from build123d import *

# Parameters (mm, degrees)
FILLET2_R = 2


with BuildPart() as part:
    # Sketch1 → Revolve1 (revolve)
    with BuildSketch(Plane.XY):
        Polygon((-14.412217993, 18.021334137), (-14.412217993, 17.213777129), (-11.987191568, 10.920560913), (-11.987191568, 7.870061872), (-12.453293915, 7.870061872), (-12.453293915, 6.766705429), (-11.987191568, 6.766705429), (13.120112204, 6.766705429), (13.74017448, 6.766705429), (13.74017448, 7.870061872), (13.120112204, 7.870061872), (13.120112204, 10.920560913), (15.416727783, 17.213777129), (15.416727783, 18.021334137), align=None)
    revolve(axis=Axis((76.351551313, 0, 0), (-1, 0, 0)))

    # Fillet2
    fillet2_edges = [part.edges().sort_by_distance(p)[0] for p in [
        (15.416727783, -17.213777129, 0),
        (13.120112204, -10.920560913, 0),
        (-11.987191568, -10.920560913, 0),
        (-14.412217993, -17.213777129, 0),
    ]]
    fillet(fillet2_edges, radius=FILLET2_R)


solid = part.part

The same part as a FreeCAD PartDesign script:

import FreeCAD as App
import Part
import Sketcher
from FreeCAD import Vector


def edges_at(feature, points):
    """Names of the edges that pass closest to the given points."""
    edges = feature.Shape.Edges
    near = lambda p: min(range(len(edges)), key=lambda i: edges[i].distToShape(Part.Vertex(*p))[0])
    return sorted({f"Edge{near(p) + 1}" for p in points})


def add_polygon(sketch, points):
    """Adds a closed chain of lines whose ends are joined by coincident constraints."""
    first, n = sketch.GeometryCount, len(points)
    for a, b in zip(points, points[1:] + points[:1]):
        sketch.addGeometry(Part.LineSegment(App.Vector(*a, 0), App.Vector(*b, 0)), False)
    for i in range(n):
        sketch.addConstraint(Sketcher.Constraint("Coincident", first + i, 2, first + (i + 1) % n, 1))

doc = App.newDocument("Part")
body = doc.addObject("PartDesign::Body", "Body")

# Sketch on XY plane
sketch1 = body.newObject("Sketcher::SketchObject", "Sketch")
sketch1.AttachmentSupport = (doc.getObject("XY_Plane"), [""])
sketch1.MapMode = "FlatFace"
add_polygon(sketch1, [(-14.412218, 18.021334), (-14.412218, 17.213777), (-11.987192, 10.920561), (-11.987192, 7.870062), (-12.453294, 7.870062), (-12.453294, 6.766705), (13.740174, 6.766705), (13.740174, 7.870062), (13.120112, 7.870062), (13.120112, 10.920561), (15.416728, 17.213777), (15.416728, 18.021334)])  # lines 0-11
sketch1.addConstraint(Sketcher.Constraint("Vertical", 0))
sketch1.addConstraint(Sketcher.Constraint("Vertical", 2))
sketch1.addConstraint(Sketcher.Constraint("Horizontal", 3))
sketch1.addConstraint(Sketcher.Constraint("Vertical", 4))
sketch1.addConstraint(Sketcher.Constraint("Horizontal", 5))
sketch1.addConstraint(Sketcher.Constraint("Vertical", 6))
sketch1.addConstraint(Sketcher.Constraint("Horizontal", 7))
sketch1.addConstraint(Sketcher.Constraint("Vertical", 8))
sketch1.addConstraint(Sketcher.Constraint("Vertical", 10))
sketch1.addConstraint(Sketcher.Constraint("Horizontal", 11))
sketch1.addConstraint(Sketcher.Constraint("Horizontal", 3, 2, 6, 2))
sketch1.addConstraint(Sketcher.Constraint("Horizontal", 1, 2, 8, 2))
sketch1.addConstraint(Sketcher.Constraint("Horizontal", 0, 2, 9, 2))
sketch1.addConstraint(Sketcher.Constraint("DistanceY", 2, 2, 2, 1, 3.050499))
sketch1.addConstraint(Sketcher.Constraint("DistanceX", 5, 1, 5, 2, 26.193468))
sketch1.addConstraint(Sketcher.Constraint("Distance", 1, 6.744281))
sketch1.addConstraint(Sketcher.Constraint("Distance", 9, 6.69918))
sketch1.addConstraint(Sketcher.Constraint("DistanceX", 3, 2, 3, 1, 0.466102))
sketch1.addConstraint(Sketcher.Constraint("DistanceX", 7, 2, 7, 1, 0.620062))
sketch1.addConstraint(Sketcher.Constraint("DistanceX", 11, 2, 11, 1, 29.828946))
sketch1.addConstraint(Sketcher.Constraint("DistanceY", 0, 2, 0, 1, 0.807557))
sketch1.addConstraint(Sketcher.Constraint("DistanceY", 4, 2, 4, 1, 1.103356))
sketch1.addConstraint(Sketcher.Constraint("DistanceX", 1, 2, -1, 1, 11.987192))
sketch1.addConstraint(Sketcher.Constraint("DistanceY", -1, 1, 1, 2, 10.920561))
revolution = body.newObject("PartDesign::Revolution", "Revolution")
revolution.Profile = sketch1
revolution.ReferenceAxis = (sketch1, ["H_Axis"])
revolution.Angle = 360
doc.recompute()

fillet = body.newObject("PartDesign::Fillet", "Fillet")
fillet.Base = (revolution, edges_at(revolution, [
    (15.417, -17.214, 0),
    (13.12, -10.921, 0),
    (-11.987, -10.921, 0),
    (-14.412, -17.214, 0),
]))
fillet.Radius = 2

doc.recompute()
